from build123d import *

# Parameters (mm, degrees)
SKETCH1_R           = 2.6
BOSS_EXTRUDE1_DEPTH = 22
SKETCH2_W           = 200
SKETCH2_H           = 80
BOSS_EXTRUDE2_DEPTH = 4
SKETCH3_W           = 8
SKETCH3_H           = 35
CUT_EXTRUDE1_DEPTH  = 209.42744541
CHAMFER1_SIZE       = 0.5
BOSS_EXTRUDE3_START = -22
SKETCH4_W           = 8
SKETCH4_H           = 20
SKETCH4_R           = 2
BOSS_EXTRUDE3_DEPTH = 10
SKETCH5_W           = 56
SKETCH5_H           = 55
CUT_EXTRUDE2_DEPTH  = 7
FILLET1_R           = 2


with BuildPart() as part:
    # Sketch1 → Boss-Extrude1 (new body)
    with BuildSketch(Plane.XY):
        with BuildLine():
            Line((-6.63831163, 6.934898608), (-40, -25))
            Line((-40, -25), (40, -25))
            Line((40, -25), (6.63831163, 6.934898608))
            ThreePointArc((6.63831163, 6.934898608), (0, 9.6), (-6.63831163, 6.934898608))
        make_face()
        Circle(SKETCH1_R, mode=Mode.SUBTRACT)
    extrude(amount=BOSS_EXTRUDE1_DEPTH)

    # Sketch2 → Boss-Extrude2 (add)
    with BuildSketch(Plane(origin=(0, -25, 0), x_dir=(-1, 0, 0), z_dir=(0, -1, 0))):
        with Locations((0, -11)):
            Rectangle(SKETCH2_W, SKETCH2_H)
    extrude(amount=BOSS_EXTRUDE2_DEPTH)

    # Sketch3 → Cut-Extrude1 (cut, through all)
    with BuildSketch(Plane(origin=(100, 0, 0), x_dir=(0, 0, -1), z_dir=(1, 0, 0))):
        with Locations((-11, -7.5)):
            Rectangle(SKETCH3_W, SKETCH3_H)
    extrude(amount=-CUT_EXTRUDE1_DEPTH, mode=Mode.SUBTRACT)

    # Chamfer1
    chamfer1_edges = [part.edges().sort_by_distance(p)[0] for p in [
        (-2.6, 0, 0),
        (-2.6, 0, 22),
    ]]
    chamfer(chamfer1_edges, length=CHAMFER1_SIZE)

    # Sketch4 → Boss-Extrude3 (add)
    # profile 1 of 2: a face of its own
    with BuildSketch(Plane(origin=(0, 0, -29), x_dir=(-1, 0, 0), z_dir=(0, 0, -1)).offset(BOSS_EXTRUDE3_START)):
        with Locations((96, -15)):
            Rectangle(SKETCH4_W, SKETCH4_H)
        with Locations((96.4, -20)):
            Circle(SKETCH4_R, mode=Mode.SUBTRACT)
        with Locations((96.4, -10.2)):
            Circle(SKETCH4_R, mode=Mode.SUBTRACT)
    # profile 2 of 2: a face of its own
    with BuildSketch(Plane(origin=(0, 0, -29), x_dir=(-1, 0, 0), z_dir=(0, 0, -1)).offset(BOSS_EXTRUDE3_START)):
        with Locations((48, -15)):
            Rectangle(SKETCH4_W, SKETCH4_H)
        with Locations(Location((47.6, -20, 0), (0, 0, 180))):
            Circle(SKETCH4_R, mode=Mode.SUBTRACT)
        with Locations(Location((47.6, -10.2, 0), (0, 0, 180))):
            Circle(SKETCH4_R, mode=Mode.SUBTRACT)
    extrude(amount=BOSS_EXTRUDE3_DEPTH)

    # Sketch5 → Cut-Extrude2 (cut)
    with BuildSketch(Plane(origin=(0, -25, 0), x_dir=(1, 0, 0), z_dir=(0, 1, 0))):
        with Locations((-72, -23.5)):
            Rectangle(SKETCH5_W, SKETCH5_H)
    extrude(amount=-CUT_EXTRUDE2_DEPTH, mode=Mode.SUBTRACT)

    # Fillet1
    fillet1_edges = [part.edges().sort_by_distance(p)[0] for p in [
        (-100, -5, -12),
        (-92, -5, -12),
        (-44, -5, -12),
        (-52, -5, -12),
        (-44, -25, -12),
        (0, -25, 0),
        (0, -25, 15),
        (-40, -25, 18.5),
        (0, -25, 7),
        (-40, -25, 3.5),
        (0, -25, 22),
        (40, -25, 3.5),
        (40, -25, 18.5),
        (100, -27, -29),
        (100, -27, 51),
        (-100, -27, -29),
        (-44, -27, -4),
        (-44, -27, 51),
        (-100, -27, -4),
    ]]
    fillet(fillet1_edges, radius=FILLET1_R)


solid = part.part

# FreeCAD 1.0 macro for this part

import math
import FreeCAD as App
import Part
import Sketcher


def edges_at(feature, points):
    """Names of the edges that pass closest to the given points."""
    edges = feature.Shape.Edges
    near = lambda p: min(range(len(edges)), key=lambda i: edges[i].distToShape(Part.Vertex(*p))[0])
    return sorted({f"Edge{near(p) + 1}" for p in points})


def add_polygon(sketch, points):
    """Adds a closed chain of lines whose ends are joined by coincident constraints."""
    first, n = sketch.GeometryCount, len(points)
    for a, b in zip(points, points[1:] + points[:1]):
        sketch.addGeometry(Part.LineSegment(App.Vector(*a, 0), App.Vector(*b, 0)), False)
    for i in range(n):
        sketch.addConstraint(Sketcher.Constraint("Coincident", first + i, 2, first + (i + 1) % n, 1))

doc = App.newDocument("Part")
body = doc.addObject("PartDesign::Body", "Body")

sketch1 = body.newObject("Sketcher::SketchObject", "Sketch")
sketch1.AttachmentSupport = (doc.getObject("XY_Plane"), [""])
sketch1.MapMode = "FlatFace"
sketch1.addGeometry(Part.LineSegment(App.Vector(-6.6, 6.9, 0), App.Vector(-40, -25, 0)), False)
sketch1.addGeometry(Part.LineSegment(App.Vector(-40, -25, 0), App.Vector(40, -25, 0)), False)
sketch1.addGeometry(Part.LineSegment(App.Vector(40, -25, 0), App.Vector(6.6, 6.9, 0)), False)
sketch1.addGeometry(Part.ArcOfCircle(Part.Circle(App.Vector(0, 0, 0), App.Vector(0, 0, 1), 9.6), math.radians(46), math.radians(134)), False)
sketch1.addGeometry(Part.Circle(App.Vector(0, 0, 0), App.Vector(0, 0, 1), 2.6), False)
sketch1.addConstraint(Sketcher.Constraint("Coincident", 0, 2, 1, 1))
sketch1.addConstraint(Sketcher.Constraint("Coincident", 1, 2, 2, 1))
sketch1.addConstraint(Sketcher.Constraint("Tangent", 2, 2, 3, 1))
sketch1.addConstraint(Sketcher.Constraint("Tangent", 3, 2, 0, 1))
sketch1.addConstraint(Sketcher.Constraint("Horizontal", 1))
sketch1.addConstraint(Sketcher.Constraint("Coincident", 3, 3, -1, 1))
sketch1.addConstraint(Sketcher.Constraint("Coincident", 4, 3, -1, 1))
sketch1.addConstraint(Sketcher.Constraint("Horizontal", 2, 2, 3, 2))
sketch1.addConstraint(Sketcher.Constraint("Diameter", 4, 5.2))
sketch1.addConstraint(Sketcher.Constraint("Radius", 3, 9.6))
sketch1.addConstraint(Sketcher.Constraint("DistanceX", 1, 1, 1, 2, 80.0))
sketch1.addConstraint(Sketcher.Constraint("DistanceY", 0, 2, -1, 1, 25.0))
pad1 = body.newObject("PartDesign::Pad", "Pad")
pad1.Profile = sketch1
pad1.Length = 22

sketch2 = body.newObject("Sketcher::SketchObject", "Sketch001")
sketch2.AttachmentSupport = (doc.getObject("XZ_Plane"), [""])
sketch2.MapMode = "FlatFace"
sketch2.AttachmentOffset = App.Placement(App.Vector(0, 0, 25), App.Rotation())
add_polygon(sketch2, [(100, -29), (100, 51), (-100, 51), (-100, -29)])
sketch2.addConstraint(Sketcher.Constraint("Vertical", 0))
sketch2.addConstraint(Sketcher.Constraint("Horizontal", 1))
sketch2.addConstraint(Sketcher.Constraint("Vertical", 2))
sketch2.addConstraint(Sketcher.Constraint("Horizontal", 3))
sketch2.addConstraint(Sketcher.Constraint("DistanceX", 1, 2, 1, 1, 200.0))
sketch2.addConstraint(Sketcher.Constraint("DistanceY", 0, 1, 0, 2, 80.0))
sketch2.addConstraint(Sketcher.Constraint("DistanceX", -1, 1, 0, 2, 100.0))
sketch2.addConstraint(Sketcher.Constraint("DistanceY", -1, 1, 0, 2, 51.0))
pad2 = body.newObject("PartDesign::Pad", "Pad001")
pad2.Profile = sketch2
pad2.Length = 4

sketch3 = body.newObject("Sketcher::SketchObject", "Sketch002")
sketch3.AttachmentSupport = (doc.getObject("YZ_Plane"), [""])
sketch3.MapMode = "FlatFace"
sketch3.AttachmentOffset = App.Placement(App.Vector(0, 0, 100), App.Rotation())
add_polygon(sketch3, [(10, 15), (-25, 15), (-25, 7), (10, 7)])
sketch3.addConstraint(Sketcher.Constraint("Horizontal", 0))
sketch3.addConstraint(Sketcher.Constraint("Vertical", 1))
sketch3.addConstraint(Sketcher.Constraint("Horizontal", 2))
sketch3.addConstraint(Sketcher.Constraint("Vertical", 3))
sketch3.addConstraint(Sketcher.Constraint("DistanceX", 0, 2, 0, 1, 35.0))
sketch3.addConstraint(Sketcher.Constraint("DistanceY", 1, 2, 1, 1, 8.0))
sketch3.addConstraint(Sketcher.Constraint("DistanceX", 0, 2, -1, 1, 25.0))
sketch3.addConstraint(Sketcher.Constraint("DistanceY", -1, 1, 0, 2, 15.0))
pocket1 = body.newObject("PartDesign::Pocket", "Pocket")
pocket1.Profile = sketch3
pocket1.Type = "ThroughAll"
doc.recompute()

chamfer = body.newObject("PartDesign::Chamfer", "Chamfer")
chamfer.Base = (pocket1, edges_at(pocket1, [(-2.6, 0, 0), (-2.6, 0, 22)]))
chamfer.Size = 0.5

sketch4 = body.newObject("Sketcher::SketchObject", "Sketch003")
sketch4.AttachmentSupport = (doc.getObject("XY_Plane"), [""])
sketch4.MapMode = "FlatFace"
sketch4.AttachmentOffset = App.Placement(App.Vector(0, 0, -7), App.Rotation())
add_polygon(sketch4, [(-92, -5), (-92, -25), (-100, -25), (-100, -5)])
sketch4.addGeometry(Part.Circle(App.Vector(-96.4, -20, 0), App.Vector(0, 0, 1), 2), False)
sketch4.addGeometry(Part.Circle(App.Vector(-96.4, -10.2, 0), App.Vector(0, 0, 1), 2), False)
add_polygon(sketch4, [(-44, -5), (-44, -25), (-52, -25), (-52, -5)])
sketch4.addGeometry(Part.Circle(App.Vector(-47.6, -20, 0), App.Vector(0, 0, 1), 2), False)
sketch4.addGeometry(Part.Circle(App.Vector(-47.6, -10.2, 0), App.Vector(0, 0, 1), 2), False)
sketch4.addConstraint(Sketcher.Constraint("Vertical", 0))
sketch4.addConstraint(Sketcher.Constraint("Horizontal", 1))
sketch4.addConstraint(Sketcher.Constraint("Vertical", 2))
sketch4.addConstraint(Sketcher.Constraint("Horizontal", 3))
sketch4.addConstraint(Sketcher.Constraint("Vertical", 6))
sketch4.addConstraint(Sketcher.Constraint("Horizontal", 7))
sketch4.addConstraint(Sketcher.Constraint("Vertical", 8))
sketch4.addConstraint(Sketcher.Constraint("Horizontal", 9))
sketch4.addConstraint(Sketcher.Constraint("Equal", 4, 5))
sketch4.addConstraint(Sketcher.Constraint("Equal", 5, 10))
sketch4.addConstraint(Sketcher.Constraint("Equal", 10, 11))
sketch4.addConstraint(Sketcher.Constraint("Horizontal", 4, 3, 10, 3))
sketch4.addConstraint(Sketcher.Constraint("Horizontal", 5, 3, 11, 3))
sketch4.addConstraint(Sketcher.Constraint("Horizontal", 1, 2, 6, 2))
sketch4.addConstraint(Sketcher.Constraint("Horizontal", 3, 2, 8, 2))
sketch4.addConstraint(Sketcher.Constraint("Vertical", 4, 3, 5, 3))
sketch4.addConstraint(Sketcher.Constraint("Vertical", 10, 3, 11, 3))
sketch4.addConstraint(Sketcher.Constraint("Equal", 3, 7))
sketch4.addConstraint(Sketcher.Constraint("Diameter", 4, 4.0))
sketch4.addConstraint(Sketcher.Constraint("DistanceX", 1, 2, 1, 1, 8.0))
sketch4.addConstraint(Sketcher.Constraint("DistanceY", 0, 2, 0, 1, 20.0))
sketch4.addConstraint(Sketcher.Constraint("DistanceY", 4, 3, -1, 1, 20.0))
sketch4.addConstraint(Sketcher.Constraint("DistanceX", 0, 2, -1, 1, 92.0))
sketch4.addConstraint(Sketcher.Constraint("DistanceY", 0, 2, -1, 1, 25.0))
sketch4.addConstraint(Sketcher.Constraint("DistanceX", 6, 2, -1, 1, 44.0))
sketch4.addConstraint(Sketcher.Constraint("DistanceX", 4, 3, -1, 1, 96.4))
sketch4.addConstraint(Sketcher.Constraint("DistanceY", 5, 3, -1, 1, 10.2))
sketch4.addConstraint(Sketcher.Constraint("DistanceX", 10, 3, -1, 1, 47.6))
pad3 = body.newObject("PartDesign::Pad", "Pad002")
pad3.Profile = sketch4
pad3.Length = 10
pad3.Reversed = True

sketch5 = body.newObject("Sketcher::SketchObject", "Sketch004")
sketch5.AttachmentSupport = (doc.getObject("XZ_Plane"), [""])
sketch5.MapMode = "FlatFace"
sketch5.AttachmentOffset = App.Placement(App.Vector(0, 0, 25), App.Rotation())
add_polygon(sketch5, [(-100, -4), (-100, 51), (-44, 51), (-44, -4)])
sketch5.addConstraint(Sketcher.Constraint("Vertical", 0))
sketch5.addConstraint(Sketcher.Constraint("Horizontal", 1))
sketch5.addConstraint(Sketcher.Constraint("Vertical", 2))
sketch5.addConstraint(Sketcher.Constraint("Horizontal", 3))
sketch5.addConstraint(Sketcher.Constraint("DistanceX", 1, 1, 1, 2, 56.0))
sketch5.addConstraint(Sketcher.Constraint("DistanceY", 0, 1, 0, 2, 55.0))
sketch5.addConstraint(Sketcher.Constraint("DistanceX", 0, 2, -1, 1, 100.0))
sketch5.addConstraint(Sketcher.Constraint("DistanceY", -1, 1, 0, 2, 51.0))
pocket2 = body.newObject("PartDesign::Pocket", "Pocket001")
pocket2.Profile = sketch5
pocket2.Length = 7
pocket2.Reversed = True
doc.recompute()

fillet = body.newObject("PartDesign::Fillet", "Fillet")
fillet.Base = (pocket2, edges_at(pocket2, [
    (-100, -5, -12),
    (-92, -5, -12),
    (-44, -5, -12),
    (-52, -5, -12),
    (-44, -25, -12),
    (0, -25, 0),
    (0, -25, 15),
    (-40, -25, 18.5),
    (0, -25, 7),
    (-40, -25, 3.5),
    (0, -25, 22),
    (40, -25, 3.5),
    (40, -25, 18.5),
    (100, -27, -29),
    (100, -27, 51),
    (-100, -27, -29),
    (-44, -27, -4),
    (-44, -27, 51),
    (-100, -27, -4),
]))
fillet.Radius = 2

doc.recompute()
